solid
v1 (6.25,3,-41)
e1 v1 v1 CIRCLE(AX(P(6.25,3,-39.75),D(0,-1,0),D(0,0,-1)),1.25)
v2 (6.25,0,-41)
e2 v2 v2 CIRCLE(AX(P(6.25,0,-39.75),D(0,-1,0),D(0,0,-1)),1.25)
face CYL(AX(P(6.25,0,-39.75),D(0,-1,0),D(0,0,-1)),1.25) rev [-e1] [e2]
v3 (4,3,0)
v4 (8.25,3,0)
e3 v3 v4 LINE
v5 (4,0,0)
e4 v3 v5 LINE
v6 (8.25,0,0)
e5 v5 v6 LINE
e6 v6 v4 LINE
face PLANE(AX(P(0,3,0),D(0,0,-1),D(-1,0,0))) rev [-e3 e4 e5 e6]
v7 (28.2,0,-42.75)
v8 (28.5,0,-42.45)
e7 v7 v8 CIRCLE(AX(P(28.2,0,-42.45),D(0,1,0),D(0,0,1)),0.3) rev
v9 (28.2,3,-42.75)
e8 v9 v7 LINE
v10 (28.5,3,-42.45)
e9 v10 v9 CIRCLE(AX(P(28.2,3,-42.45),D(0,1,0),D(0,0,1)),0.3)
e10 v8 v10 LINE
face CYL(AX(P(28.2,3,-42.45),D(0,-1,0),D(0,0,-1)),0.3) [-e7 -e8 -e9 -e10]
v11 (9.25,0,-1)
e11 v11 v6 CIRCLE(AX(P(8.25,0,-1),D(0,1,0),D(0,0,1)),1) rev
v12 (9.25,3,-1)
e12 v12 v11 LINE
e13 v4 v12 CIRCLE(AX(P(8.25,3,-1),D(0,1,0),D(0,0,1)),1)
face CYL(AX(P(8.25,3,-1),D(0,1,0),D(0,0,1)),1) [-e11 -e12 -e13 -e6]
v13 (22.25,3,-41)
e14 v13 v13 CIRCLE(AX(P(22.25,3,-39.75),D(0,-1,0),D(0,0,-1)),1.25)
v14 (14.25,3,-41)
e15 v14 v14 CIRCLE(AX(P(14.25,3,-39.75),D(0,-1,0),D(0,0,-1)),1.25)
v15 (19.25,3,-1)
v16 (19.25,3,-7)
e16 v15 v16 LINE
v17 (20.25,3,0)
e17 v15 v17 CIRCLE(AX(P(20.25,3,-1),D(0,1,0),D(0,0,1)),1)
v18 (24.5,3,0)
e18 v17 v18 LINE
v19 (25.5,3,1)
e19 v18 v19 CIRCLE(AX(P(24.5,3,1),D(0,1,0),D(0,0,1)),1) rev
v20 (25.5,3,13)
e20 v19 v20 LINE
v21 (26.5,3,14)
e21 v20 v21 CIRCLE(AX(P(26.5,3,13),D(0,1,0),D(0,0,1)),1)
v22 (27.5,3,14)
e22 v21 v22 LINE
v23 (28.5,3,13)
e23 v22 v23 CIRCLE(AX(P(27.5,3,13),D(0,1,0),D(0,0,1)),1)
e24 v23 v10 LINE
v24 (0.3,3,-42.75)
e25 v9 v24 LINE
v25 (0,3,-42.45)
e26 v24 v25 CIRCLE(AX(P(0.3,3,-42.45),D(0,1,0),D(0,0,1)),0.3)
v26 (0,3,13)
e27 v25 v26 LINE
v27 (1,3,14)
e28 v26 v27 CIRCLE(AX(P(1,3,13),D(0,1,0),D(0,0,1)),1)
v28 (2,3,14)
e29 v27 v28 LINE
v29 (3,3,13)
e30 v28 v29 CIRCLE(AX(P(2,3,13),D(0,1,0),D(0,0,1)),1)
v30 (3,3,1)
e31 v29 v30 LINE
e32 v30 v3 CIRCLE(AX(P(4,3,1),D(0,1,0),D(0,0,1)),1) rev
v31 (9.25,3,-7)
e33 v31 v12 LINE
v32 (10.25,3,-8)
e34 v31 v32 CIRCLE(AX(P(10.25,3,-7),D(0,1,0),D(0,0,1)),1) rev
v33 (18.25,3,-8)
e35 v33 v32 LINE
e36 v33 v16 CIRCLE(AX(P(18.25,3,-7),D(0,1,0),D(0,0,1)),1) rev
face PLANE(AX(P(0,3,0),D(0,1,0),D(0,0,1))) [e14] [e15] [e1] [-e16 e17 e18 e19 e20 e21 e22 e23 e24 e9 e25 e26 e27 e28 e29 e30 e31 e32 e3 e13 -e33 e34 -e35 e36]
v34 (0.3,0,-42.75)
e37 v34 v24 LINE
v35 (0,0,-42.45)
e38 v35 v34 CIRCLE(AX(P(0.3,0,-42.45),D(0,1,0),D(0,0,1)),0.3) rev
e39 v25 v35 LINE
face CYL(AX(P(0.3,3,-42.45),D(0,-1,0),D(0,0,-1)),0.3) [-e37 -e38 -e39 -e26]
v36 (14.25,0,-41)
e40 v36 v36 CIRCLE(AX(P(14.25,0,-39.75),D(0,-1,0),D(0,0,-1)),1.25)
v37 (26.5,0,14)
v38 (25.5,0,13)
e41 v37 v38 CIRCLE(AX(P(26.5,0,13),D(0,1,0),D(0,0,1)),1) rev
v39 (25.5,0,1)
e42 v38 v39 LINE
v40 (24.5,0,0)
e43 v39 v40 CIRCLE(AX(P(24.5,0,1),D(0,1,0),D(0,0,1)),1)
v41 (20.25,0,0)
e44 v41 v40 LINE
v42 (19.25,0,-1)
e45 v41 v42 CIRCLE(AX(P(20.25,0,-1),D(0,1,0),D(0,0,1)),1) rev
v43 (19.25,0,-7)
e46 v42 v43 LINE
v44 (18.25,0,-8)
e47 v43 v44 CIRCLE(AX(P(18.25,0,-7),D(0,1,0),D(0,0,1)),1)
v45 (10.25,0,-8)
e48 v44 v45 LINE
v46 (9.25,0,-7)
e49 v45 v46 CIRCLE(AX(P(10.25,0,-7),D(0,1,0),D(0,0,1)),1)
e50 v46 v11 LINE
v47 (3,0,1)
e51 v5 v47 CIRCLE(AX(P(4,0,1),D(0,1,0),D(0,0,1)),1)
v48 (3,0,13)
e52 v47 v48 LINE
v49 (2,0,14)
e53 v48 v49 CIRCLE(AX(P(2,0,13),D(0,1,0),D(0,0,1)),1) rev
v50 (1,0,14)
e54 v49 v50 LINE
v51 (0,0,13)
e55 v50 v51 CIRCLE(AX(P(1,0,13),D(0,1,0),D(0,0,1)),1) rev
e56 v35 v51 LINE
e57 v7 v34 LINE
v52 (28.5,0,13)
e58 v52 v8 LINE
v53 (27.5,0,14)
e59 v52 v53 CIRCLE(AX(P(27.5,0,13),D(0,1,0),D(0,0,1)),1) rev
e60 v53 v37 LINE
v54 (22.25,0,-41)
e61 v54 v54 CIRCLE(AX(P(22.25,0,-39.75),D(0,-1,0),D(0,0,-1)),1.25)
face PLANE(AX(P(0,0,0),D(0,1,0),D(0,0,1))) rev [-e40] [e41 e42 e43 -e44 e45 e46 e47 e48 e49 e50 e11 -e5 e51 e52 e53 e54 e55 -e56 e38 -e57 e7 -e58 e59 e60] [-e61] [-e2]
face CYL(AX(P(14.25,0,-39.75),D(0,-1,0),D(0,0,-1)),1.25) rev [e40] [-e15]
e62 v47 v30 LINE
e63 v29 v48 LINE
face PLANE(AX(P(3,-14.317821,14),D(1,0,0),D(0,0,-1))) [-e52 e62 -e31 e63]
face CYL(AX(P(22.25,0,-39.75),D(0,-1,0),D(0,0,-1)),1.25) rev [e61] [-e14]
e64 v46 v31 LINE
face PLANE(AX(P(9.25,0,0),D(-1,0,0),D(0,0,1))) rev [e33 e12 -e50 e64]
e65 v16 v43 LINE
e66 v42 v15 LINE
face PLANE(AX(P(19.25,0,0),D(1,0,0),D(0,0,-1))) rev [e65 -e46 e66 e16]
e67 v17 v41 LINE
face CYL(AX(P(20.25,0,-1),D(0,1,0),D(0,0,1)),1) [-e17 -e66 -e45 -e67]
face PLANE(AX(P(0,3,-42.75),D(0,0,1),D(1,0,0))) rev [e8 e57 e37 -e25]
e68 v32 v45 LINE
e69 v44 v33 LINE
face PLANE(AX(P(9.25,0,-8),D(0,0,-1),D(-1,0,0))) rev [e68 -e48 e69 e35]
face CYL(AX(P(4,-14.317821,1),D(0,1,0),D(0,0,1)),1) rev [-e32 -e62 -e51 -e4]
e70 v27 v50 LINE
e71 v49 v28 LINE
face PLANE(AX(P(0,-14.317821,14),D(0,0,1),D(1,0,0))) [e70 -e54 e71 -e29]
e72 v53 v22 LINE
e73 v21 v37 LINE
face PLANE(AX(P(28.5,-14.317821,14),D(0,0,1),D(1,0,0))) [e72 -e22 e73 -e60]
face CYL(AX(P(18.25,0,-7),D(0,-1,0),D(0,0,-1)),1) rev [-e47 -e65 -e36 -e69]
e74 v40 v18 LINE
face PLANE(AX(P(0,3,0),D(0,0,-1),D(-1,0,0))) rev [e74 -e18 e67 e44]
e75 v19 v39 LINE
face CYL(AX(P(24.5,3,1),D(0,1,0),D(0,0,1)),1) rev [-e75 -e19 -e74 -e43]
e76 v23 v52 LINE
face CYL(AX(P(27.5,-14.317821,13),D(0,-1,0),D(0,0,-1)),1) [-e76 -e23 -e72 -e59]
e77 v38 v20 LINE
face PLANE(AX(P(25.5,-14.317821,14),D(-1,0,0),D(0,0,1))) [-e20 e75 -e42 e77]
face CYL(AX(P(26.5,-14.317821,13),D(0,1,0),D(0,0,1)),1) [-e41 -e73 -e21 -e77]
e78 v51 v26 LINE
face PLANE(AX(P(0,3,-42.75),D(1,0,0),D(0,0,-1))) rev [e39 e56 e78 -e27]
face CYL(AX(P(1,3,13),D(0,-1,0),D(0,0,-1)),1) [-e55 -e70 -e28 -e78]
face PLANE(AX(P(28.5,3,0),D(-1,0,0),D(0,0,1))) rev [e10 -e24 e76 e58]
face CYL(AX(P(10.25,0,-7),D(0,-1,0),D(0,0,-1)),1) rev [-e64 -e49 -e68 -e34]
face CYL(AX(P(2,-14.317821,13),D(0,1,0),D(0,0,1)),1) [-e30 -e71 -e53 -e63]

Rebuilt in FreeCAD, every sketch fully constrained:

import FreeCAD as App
import Part
import Sketcher


def edges_at(feature, points):
    """Names of the edges that pass closest to the given points."""
    edges = feature.Shape.Edges
    near = lambda p: min(range(len(edges)), key=lambda i: edges[i].distToShape(Part.Vertex(*p))[0])
    return sorted({f"Edge{near(p) + 1}" for p in points})


def add_polygon(sketch, points):
    """Adds a closed chain of lines whose ends are joined by coincident constraints."""
    first, n = sketch.GeometryCount, len(points)
    for a, b in zip(points, points[1:] + points[:1]):
        sketch.addGeometry(Part.LineSegment(App.Vector(*a, 0), App.Vector(*b, 0)), False)
    for i in range(n):
        sketch.addConstraint(Sketcher.Constraint("Coincident", first + i, 2, first + (i + 1) % n, 1))

doc = App.newDocument("Part")
params = doc.addObject("Spreadsheet::Sheet", "Params")
for row, (alias, value) in enumerate([
    ("sketch1_width", "28.5 mm"),
    ("sketch1_height", "42.75 mm"),
    ("pad1_length", "3 mm"),
    ("sketch2_diameter", "2.5 mm"),
    ("hole_diameter", "2.5 mm"),
    ("sketch3_width", "3 mm"),
    ("sketch3_height", "14 mm"),
    ("pad2_length", "3 mm"),
    ("sketch4_width", "10 mm"),
    ("sketch4_height", "8 mm"),
    ("fillet_radius", "1 mm"),
    ("fillet2_radius", "0.3 mm"),
], start=1):
    params.set(f"A{row}", alias)
    params.set(f"B{row}", "=" + value)
    params.setAlias(f"B{row}", alias)

body = doc.addObject("PartDesign::Body", "Body")

# Sketch on XZ plane
sketch1 = doc.addObject("Sketcher::SketchObject", "Sketch")
body.addObject(sketch1)
sketch1.AttachmentSupport = (doc.XZ_Plane, [""])
sketch1.MapMode = "FlatFace"
add_polygon(sketch1, [(0, -43), (0, 0), (28, 0), (28, -43)])  # lines 0-3
sketch1.addConstraint([
    Sketcher.Constraint("Vertical", 0),
    Sketcher.Constraint("Horizontal", 1),
    Sketcher.Constraint("Vertical", 2),
    Sketcher.Constraint("Horizontal", 3),
    Sketcher.Constraint("Coincident", 0, 2, -1, 1),
    Sketcher.Constraint("DistanceX", 1, 1, 1, 2, 28.5),
    Sketcher.Constraint("DistanceY", 0, 1, 0, 2, 42.75),
])
sketch1.setExpression("Constraints[9]", "Params.sketch1_width")
sketch1.setExpression("Constraints[10]", "Params.sketch1_height")
pad1 = doc.addObject("PartDesign::Pad", "Pad")
body.addObject(pad1)
pad1.Profile = sketch1
pad1.setExpression("Length", "Params.pad1_length")
pad1.Reversed = True

# Sketch on XZ plane
sketch2 = doc.addObject("Sketcher::SketchObject", "Sketch001")
body.addObject(sketch2)
sketch2.AttachmentSupport = (doc.XZ_Plane, [""])
sketch2.MapMode = "FlatFace"
sketch2.addGeometry([
    Part.Circle(App.Vector(22.2, -39.8, 0), App.Vector(0, 0, 1), 1.2),
    Part.Circle(App.Vector(14.2, -39.8, 0), App.Vector(0, 0, 1), 1.2),
    Part.Circle(App.Vector(6.2, -39.8, 0), App.Vector(0, 0, 1), 1.2),
], False)
sketch2.addConstraint([
    Sketcher.Constraint("Equal", 0, 1),
    Sketcher.Constraint("Equal", 1, 2),
    Sketcher.Constraint("Horizontal", 0, 3, 1, 3),
    Sketcher.Constraint("Horizontal", 1, 3, 2, 3),
    Sketcher.Constraint("Diameter", 0, 2.5),
    Sketcher.Constraint("DistanceX", 1, 3, 0, 3, 8.0),
    Sketcher.Constraint("DistanceX", 2, 3, 1, 3, 8.0),
    Sketcher.Constraint("DistanceX", -1, 1, 0, 3, 22.25),
    Sketcher.Constraint("DistanceY", 0, 3, -1, 1, 39.75),
])
sketch2.setExpression("Constraints[4]", "Params.sketch2_diameter")
doc.recompute()
hole = doc.addObject("PartDesign::Hole", "Hole")
body.addObject(hole)
hole.Profile = sketch2
hole.ThreadType = "None"
hole.setExpression("Diameter", "Params.hole_diameter")
hole.DepthType = "ThroughAll"

# Sketch on XZ plane
sketch3 = doc.addObject("Sketcher::SketchObject", "Sketch002")
body.addObject(sketch3)
sketch3.AttachmentSupport = (doc.XZ_Plane, [""])
sketch3.MapMode = "FlatFace"
sketch3.AttachmentOffset = App.Placement(App.Vector(0, 0, -3), App.Rotation())
add_polygon(sketch3, [(0, 0), (0, 14), (3, 14), (3, 0)])  # lines 0-3
add_polygon(sketch3, [(25.5, 0), (25.5, 14), (28.5, 14), (28.5, 0)])  # lines 4-7
sketch3.addConstraint([
    Sketcher.Constraint("Vertical", 0),
    Sketcher.Constraint("Horizontal", 1),
    Sketcher.Constraint("Vertical", 2),
    Sketcher.Constraint("Horizontal", 3),
    Sketcher.Constraint("Vertical", 4),
    Sketcher.Constraint("Horizontal", 5),
    Sketcher.Constraint("Vertical", 6),
    Sketcher.Constraint("Horizontal", 7),
    Sketcher.Constraint("Coincident", 3, 2, -1, 1),
    Sketcher.Constraint("PointOnObject", 6, 2, -1),
    Sketcher.Constraint("Horizontal", 1, 2, 4, 2),
    Sketcher.Constraint("Equal", 3, 5),
    Sketcher.Constraint("DistanceX", 1, 1, 1, 2, 3.0),
    Sketcher.Constraint("DistanceY", 0, 1, 0, 2, 14.0),
    Sketcher.Constraint("DistanceX", -1, 1, 4, 2, 25.5),
])
sketch3.setExpression("Constraints[20]", "Params.sketch3_width")
sketch3.setExpression("Constraints[21]", "Params.sketch3_height")
pad2 = doc.addObject("PartDesign::Pad", "Pad001")
body.addObject(pad2)
pad2.Profile = sketch3
pad2.setExpression("Length", "Params.pad2_length")

# Sketch on XZ plane
sketch4 = doc.addObject("Sketcher::SketchObject", "Sketch003")
body.addObject(sketch4)
sketch4.AttachmentSupport = (doc.XZ_Plane, [""])
sketch4.MapMode = "FlatFace"
sketch4.AttachmentOffset = App.Placement(App.Vector(0, 0, -3), App.Rotation())
add_polygon(sketch4, [(9, -8), (9, 0), (19, 0), (19, -8)])  # lines 0-3
sketch4.addConstraint([
    Sketcher.Constraint("Vertical", 0),
    Sketcher.Constraint("Horizontal", 1),
    Sketcher.Constraint("Vertical", 2),
    Sketcher.Constraint("Horizontal", 3),
    Sketcher.Constraint("PointOnObject", 0, 2, -1),
    Sketcher.Constraint("DistanceX", 1, 1, 1, 2, 10.0),
    Sketcher.Constraint("DistanceY", 0, 1, 0, 2, 8.0),
    Sketcher.Constraint("DistanceX", -1, 1, 0, 2, 9.25),
])
sketch4.setExpression("Constraints[9]", "Params.sketch4_width")
sketch4.setExpression("Constraints[10]", "Params.sketch4_height")
pocket1 = doc.addObject("PartDesign::Pocket", "Pocket")
body.addObject(pocket1)
pocket1.Profile = sketch4
pocket1.Type = "ThroughAll"
pocket1.Reversed = True
doc.recompute()

fillet = doc.addObject("PartDesign::Fillet", "Fillet")
body.addObject(fillet)
fillet.Base = (pocket1, edges_at(pocket1, [
    (3, 1.5, 0),
    (3, 1.5, 14),
    (0, 1.5, 14),
    (25.5, 1.5, 14),
    (25.5, 1.5, 0),
    (28.5, 1.5, 14),
    (19.25, 1.5, -8),
    (19.25, 1.5, 0),
    (9.25, 1.5, 0),
    (9.25, 1.5, -8),
]))
fillet.setExpression("Radius", "Params.fillet_radius")
doc.recompute()

fillet2 = doc.addObject("PartDesign::Fillet", "Fillet001")
body.addObject(fillet2)
fillet2.Base = (fillet, edges_at(fillet, [(0, 1.5, -42.75), (28.5, 1.5, -42.75)]))
fillet2.setExpression("Radius", "Params.fillet2_radius")

doc.recompute()
